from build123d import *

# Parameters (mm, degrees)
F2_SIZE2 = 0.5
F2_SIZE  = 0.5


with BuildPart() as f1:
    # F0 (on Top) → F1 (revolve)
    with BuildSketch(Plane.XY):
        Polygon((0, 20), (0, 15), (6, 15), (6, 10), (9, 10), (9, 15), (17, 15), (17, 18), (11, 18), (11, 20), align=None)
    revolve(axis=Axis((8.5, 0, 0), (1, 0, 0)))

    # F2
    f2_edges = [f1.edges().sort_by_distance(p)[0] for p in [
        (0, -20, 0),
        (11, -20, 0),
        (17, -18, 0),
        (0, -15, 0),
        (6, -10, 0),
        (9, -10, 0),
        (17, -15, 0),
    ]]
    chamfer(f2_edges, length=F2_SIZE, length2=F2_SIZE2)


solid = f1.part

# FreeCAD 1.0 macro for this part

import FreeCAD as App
import Part
import Sketcher
from FreeCAD import Vector
Q = App.Units.Quantity


def edges_at(feature, points):
    """Names of the edges that pass closest to the given points."""
    edges = feature.Shape.Edges
    near = lambda p: min(range(len(edges)), key=lambda i: edges[i].distToShape(Part.Vertex(*p))[0])
    return sorted({f"Edge{near(p) + 1}" for p in points})

doc = App.newDocument("Part")
body = doc.addObject("PartDesign::Body", "Body")

# Sketch on XY plane
sketch1 = doc.addObject("Sketcher::SketchObject", "Sketch")
body.addObject(sketch1)
sketch1.AttachmentSupport = (doc.XY_Plane, [""])
sketch1.MapMode = "FlatFace"
sketch1.addGeometry(Part.LineSegment(Vector(0, 20, 0), Vector(0, 15, 0)), False)
sketch1.addGeometry(Part.LineSegment(Vector(0, 15, 0), Vector(6, 15, 0)), False)
sketch1.addGeometry(Part.LineSegment(Vector(6, 15, 0), Vector(6, 10, 0)), False)
sketch1.addGeometry(Part.LineSegment(Vector(6, 10, 0), Vector(9, 10, 0)), False)
sketch1.addGeometry(Part.LineSegment(Vector(9, 10, 0), Vector(9, 15, 0)), False)
sketch1.addGeometry(Part.LineSegment(Vector(9, 15, 0), Vector(17, 15, 0)), False)
sketch1.addGeometry(Part.LineSegment(Vector(17, 15, 0), Vector(17, 18, 0)), False)
sketch1.addGeometry(Part.LineSegment(Vector(17, 18, 0), Vector(11, 18, 0)), False)
sketch1.addGeometry(Part.LineSegment(Vector(11, 18, 0), Vector(11, 20, 0)), False)
sketch1.addGeometry(Part.LineSegment(Vector(11, 20, 0), Vector(0, 20, 0)), False)
sketch1.addConstraint(Sketcher.Constraint("Coincident", 0, 2, 1, 1))
sketch1.addConstraint(Sketcher.Constraint("Coincident", 1, 2, 2, 1))
sketch1.addConstraint(Sketcher.Constraint("Coincident", 2, 2, 3, 1))
sketch1.addConstraint(Sketcher.Constraint("Coincident", 3, 2, 4, 1))
sketch1.addConstraint(Sketcher.Constraint("Coincident", 4, 2, 5, 1))
sketch1.addConstraint(Sketcher.Constraint("Coincident", 5, 2, 6, 1))
sketch1.addConstraint(Sketcher.Constraint("Coincident", 6, 2, 7, 1))
sketch1.addConstraint(Sketcher.Constraint("Coincident", 7, 2, 8, 1))
sketch1.addConstraint(Sketcher.Constraint("Coincident", 8, 2, 9, 1))
sketch1.addConstraint(Sketcher.Constraint("Coincident", 9, 2, 0, 1))
sketch1.addConstraint(Sketcher.Constraint("Vertical", 0))
sketch1.addConstraint(Sketcher.Constraint("Horizontal", 1))
sketch1.addConstraint(Sketcher.Constraint("Vertical", 2))
sketch1.addConstraint(Sketcher.Constraint("Horizontal", 3))
sketch1.addConstraint(Sketcher.Constraint("Vertical", 4))
sketch1.addConstraint(Sketcher.Constraint("Horizontal", 5))
sketch1.addConstraint(Sketcher.Constraint("Vertical", 6))
sketch1.addConstraint(Sketcher.Constraint("Horizontal", 7))
sketch1.addConstraint(Sketcher.Constraint("Vertical", 8))
sketch1.addConstraint(Sketcher.Constraint("Horizontal", 9))
sketch1.addConstraint(Sketcher.Constraint("PointOnObject", 0, 2, -2))
sketch1.addConstraint(Sketcher.Constraint("Horizontal", 1, 2, 4, 2))
sketch1.addConstraint(Sketcher.Constraint("Equal", 1, 7))
sketch1.addConstraint(Sketcher.Constraint("Equal", 0, 2))
sketch1.addConstraint(Sketcher.Constraint("Equal", 3, 6))
sketch1.addConstraint(Sketcher.Constraint("DistanceX", 1, 1, 1, 2, Q("6 mm")))
sketch1.addConstraint(Sketcher.Constraint("DistanceX", 3, 1, 3, 2, Q("3 mm")))
sketch1.addConstraint(Sketcher.Constraint("DistanceX", 5, 1, 5, 2, Q("8 mm")))
sketch1.addConstraint(Sketcher.Constraint("DistanceY", 0, 2, 0, 1, Q("5 mm")))
sketch1.addConstraint(Sketcher.Constraint("DistanceY", -1, 1, 0, 2, Q("15 mm")))
revolution = doc.addObject("PartDesign::Revolution", "Revolution")
body.addObject(revolution)
revolution.Profile = sketch1
revolution.ReferenceAxis = (sketch1, ["H_Axis"])
revolution.Angle = 360
doc.recompute()

chamfer = doc.addObject("PartDesign::Chamfer", "Chamfer")
body.addObject(chamfer)
chamfer.Base = (revolution, edges_at(revolution, [
    (0, -20, 0),
    (11, -20, 0),
    (17, -18, 0),
    (0, -15, 0),
    (6, -10, 0),
    (9, -10, 0),
    (17, -15, 0),
]))
chamfer.ChamferType = "Two distances"
chamfer.Size = 0.5
chamfer.Size2 = 0.5

doc.recompute()
